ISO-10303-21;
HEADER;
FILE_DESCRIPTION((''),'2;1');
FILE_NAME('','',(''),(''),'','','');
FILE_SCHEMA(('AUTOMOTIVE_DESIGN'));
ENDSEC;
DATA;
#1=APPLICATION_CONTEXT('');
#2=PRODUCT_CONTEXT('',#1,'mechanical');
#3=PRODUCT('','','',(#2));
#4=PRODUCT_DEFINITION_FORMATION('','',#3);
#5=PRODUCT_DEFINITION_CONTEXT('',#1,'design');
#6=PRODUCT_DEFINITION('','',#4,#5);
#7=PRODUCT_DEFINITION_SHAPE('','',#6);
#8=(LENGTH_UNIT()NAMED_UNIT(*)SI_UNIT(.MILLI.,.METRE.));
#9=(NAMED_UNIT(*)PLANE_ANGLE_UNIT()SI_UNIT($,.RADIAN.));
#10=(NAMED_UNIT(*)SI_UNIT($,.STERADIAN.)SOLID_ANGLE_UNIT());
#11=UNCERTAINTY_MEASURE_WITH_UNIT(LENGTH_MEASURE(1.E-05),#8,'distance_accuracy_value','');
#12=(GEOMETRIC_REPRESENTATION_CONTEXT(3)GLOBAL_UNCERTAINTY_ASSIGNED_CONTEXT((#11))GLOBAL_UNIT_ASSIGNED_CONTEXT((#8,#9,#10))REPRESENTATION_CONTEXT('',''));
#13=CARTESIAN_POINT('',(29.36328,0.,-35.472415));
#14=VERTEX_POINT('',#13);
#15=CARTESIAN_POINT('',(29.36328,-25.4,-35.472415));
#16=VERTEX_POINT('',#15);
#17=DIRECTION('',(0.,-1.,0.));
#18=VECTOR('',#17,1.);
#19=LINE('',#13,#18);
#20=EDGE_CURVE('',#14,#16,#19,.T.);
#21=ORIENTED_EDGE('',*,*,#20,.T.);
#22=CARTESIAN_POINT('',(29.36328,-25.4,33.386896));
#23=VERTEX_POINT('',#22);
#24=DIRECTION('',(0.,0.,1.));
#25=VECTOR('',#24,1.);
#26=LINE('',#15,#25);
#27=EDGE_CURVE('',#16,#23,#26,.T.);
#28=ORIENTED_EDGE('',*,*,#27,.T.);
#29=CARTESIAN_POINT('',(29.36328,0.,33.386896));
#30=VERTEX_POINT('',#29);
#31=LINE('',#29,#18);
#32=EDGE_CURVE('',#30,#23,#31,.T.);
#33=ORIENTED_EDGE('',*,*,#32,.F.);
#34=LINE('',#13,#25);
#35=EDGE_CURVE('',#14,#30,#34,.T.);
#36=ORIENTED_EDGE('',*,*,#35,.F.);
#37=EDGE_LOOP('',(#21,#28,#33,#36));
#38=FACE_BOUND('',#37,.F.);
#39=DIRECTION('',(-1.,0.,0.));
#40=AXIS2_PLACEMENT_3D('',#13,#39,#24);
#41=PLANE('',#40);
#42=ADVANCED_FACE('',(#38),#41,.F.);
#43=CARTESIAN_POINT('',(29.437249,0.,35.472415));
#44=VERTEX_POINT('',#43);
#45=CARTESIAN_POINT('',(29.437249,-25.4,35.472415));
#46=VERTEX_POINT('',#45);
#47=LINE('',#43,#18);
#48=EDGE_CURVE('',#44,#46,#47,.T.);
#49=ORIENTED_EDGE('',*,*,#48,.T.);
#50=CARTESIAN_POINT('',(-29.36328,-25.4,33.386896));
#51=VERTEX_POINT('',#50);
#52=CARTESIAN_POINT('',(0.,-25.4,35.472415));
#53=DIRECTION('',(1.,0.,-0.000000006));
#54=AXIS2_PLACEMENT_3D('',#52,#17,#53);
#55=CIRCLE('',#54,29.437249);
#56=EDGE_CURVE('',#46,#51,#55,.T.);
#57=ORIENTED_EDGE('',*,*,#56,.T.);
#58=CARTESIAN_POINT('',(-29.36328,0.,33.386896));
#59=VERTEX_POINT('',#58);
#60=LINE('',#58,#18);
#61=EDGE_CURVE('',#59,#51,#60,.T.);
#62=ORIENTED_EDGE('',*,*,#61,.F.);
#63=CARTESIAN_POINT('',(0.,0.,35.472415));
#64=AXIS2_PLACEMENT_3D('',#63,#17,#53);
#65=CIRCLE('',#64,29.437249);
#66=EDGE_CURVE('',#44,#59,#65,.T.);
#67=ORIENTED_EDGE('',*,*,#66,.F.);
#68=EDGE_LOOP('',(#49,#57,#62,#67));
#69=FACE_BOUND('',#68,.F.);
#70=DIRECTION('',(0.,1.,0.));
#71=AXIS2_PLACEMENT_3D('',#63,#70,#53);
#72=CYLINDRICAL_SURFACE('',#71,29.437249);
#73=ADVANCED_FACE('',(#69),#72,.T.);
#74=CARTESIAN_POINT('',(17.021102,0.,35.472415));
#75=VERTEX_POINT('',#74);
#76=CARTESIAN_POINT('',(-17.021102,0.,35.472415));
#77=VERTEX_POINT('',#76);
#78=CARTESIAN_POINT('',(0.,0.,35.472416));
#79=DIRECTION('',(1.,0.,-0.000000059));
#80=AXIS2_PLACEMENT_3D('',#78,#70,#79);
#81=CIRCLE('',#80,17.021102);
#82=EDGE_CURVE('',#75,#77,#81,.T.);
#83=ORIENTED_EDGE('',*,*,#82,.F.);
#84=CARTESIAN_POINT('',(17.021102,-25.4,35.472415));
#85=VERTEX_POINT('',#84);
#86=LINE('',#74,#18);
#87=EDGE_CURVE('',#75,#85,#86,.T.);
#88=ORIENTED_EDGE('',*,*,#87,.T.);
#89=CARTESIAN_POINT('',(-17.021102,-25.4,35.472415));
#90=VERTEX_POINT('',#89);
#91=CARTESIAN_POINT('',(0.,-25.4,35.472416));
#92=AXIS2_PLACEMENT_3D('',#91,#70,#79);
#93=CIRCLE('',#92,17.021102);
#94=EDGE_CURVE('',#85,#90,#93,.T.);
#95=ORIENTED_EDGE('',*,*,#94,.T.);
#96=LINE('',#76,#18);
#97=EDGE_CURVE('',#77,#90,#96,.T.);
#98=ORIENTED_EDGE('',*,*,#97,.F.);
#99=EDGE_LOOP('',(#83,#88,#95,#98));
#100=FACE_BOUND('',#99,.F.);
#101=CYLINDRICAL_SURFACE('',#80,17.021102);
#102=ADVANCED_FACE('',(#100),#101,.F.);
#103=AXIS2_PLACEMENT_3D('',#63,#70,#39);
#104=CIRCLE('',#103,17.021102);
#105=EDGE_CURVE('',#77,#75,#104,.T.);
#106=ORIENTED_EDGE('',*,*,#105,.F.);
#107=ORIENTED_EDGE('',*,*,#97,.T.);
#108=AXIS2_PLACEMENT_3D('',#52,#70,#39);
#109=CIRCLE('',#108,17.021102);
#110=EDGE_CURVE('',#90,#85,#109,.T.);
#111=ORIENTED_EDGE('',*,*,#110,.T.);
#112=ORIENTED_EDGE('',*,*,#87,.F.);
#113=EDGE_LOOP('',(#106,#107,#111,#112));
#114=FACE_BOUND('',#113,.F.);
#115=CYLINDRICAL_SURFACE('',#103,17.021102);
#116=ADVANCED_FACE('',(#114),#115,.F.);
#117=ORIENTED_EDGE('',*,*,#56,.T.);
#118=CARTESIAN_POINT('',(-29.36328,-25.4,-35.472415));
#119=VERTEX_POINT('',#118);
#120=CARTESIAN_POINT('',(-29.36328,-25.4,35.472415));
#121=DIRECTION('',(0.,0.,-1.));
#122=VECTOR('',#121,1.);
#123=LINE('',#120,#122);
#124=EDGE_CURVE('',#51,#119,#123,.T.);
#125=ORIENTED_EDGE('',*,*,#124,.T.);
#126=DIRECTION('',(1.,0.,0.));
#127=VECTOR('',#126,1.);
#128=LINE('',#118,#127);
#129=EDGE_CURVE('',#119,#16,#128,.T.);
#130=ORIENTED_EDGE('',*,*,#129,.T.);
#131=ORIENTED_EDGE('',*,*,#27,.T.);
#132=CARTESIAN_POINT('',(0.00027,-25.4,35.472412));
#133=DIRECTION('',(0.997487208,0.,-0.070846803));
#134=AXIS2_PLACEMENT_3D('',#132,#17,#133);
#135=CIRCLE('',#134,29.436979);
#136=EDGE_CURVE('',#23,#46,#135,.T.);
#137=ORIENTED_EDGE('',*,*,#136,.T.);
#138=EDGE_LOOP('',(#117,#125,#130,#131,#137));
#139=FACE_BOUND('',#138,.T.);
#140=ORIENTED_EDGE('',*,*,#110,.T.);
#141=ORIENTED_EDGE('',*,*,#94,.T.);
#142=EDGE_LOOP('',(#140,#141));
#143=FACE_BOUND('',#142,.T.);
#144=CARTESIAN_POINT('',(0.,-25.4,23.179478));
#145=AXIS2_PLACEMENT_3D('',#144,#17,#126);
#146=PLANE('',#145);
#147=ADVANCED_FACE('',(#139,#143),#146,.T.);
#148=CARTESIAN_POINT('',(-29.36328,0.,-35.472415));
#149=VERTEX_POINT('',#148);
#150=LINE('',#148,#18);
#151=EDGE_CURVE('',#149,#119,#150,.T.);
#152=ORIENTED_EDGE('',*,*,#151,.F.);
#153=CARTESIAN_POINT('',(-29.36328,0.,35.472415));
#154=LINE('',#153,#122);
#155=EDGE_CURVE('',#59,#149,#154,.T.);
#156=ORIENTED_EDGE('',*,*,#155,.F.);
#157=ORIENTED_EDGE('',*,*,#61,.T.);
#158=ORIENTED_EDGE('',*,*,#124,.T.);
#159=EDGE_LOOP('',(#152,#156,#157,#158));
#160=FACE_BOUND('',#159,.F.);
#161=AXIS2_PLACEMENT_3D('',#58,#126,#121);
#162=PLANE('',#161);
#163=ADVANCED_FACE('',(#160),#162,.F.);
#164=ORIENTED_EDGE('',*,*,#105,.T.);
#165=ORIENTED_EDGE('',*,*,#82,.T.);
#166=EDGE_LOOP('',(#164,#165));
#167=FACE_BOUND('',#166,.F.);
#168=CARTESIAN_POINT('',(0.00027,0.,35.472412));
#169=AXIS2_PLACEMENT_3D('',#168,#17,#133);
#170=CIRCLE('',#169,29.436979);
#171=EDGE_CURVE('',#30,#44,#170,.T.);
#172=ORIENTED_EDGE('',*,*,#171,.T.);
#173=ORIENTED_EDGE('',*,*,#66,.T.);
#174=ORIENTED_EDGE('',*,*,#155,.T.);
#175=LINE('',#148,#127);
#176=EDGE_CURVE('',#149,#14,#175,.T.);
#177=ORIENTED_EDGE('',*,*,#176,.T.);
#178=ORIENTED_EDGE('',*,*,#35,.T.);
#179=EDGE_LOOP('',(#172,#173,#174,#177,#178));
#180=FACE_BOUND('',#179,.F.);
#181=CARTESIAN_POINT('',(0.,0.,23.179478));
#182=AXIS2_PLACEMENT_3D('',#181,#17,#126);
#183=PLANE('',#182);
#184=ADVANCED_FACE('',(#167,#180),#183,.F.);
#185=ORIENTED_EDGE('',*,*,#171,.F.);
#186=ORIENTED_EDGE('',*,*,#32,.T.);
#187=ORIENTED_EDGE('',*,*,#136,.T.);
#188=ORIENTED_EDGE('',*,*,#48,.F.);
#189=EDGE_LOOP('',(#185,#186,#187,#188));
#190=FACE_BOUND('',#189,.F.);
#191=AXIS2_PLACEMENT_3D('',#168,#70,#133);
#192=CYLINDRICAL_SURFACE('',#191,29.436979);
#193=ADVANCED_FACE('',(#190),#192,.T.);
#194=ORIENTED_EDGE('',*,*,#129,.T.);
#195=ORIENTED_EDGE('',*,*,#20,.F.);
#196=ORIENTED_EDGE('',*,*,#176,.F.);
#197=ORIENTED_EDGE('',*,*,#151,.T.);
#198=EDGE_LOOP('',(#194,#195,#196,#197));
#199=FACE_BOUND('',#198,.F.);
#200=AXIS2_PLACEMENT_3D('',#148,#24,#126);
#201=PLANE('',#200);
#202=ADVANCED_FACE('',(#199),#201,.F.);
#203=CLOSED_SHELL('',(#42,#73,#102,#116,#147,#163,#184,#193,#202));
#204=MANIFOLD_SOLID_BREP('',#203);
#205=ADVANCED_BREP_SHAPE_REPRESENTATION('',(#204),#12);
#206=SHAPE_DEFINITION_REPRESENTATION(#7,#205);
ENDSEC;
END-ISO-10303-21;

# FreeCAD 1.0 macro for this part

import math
import FreeCAD as App
import Part
import Sketcher
from FreeCAD import Vector
Q = App.Units.Quantity

doc = App.newDocument("Part")
body = doc.addObject("PartDesign::Body", "Body")

sketch1 = doc.addObject("Sketcher::SketchObject", "Sketch")
body.addObject(sketch1)
sketch1.AttachmentSupport = (doc.XZ_Plane, [""])
sketch1.MapMode = "FlatFace"
sketch1.addGeometry([
    Part.LineSegment(Vector(-29.4, 33.4, 0), Vector(-29.4, -35.5, 0)),
    Part.LineSegment(Vector(-29.4, -35.5, 0), Vector(29.4, -35.5, 0)),
    Part.LineSegment(Vector(29.4, -35.5, 0), Vector(29.4, 33.4, 0)),
    Part.ArcOfCircle(Part.Circle(Vector(0, 35.5, 0), Vector(0, 0, 1), 29.4), math.radians(-4.06), math.radians(0)),
    Part.ArcOfCircle(Part.Circle(Vector(0, 35.5, 0), Vector(0, 0, 1), 29.4), math.radians(0), math.radians(184)),
    Part.ArcOfCircle(Part.Circle(Vector(0, 35.5, 0), Vector(0, 0, 1), 17), math.radians(-180), math.radians(0)),
    Part.ArcOfCircle(Part.Circle(Vector(0, 35.5, 0), Vector(0, 0, 1), 17), math.radians(0), math.radians(180)),
], False)
sketch1.addConstraint([
    Sketcher.Constraint("Coincident", 0, 2, 1, 1),
    Sketcher.Constraint("Coincident", 1, 2, 2, 1),
    Sketcher.Constraint("Coincident", 2, 2, 3, 1),
    Sketcher.Constraint("Tangent", 3, 2, 4, 1),
    Sketcher.Constraint("Coincident", 4, 2, 0, 1),
    Sketcher.Constraint("Tangent", 5, 1, 6, 2),
    Sketcher.Constraint("Coincident", 6, 1, 5, 2),
    Sketcher.Constraint("Vertical", 0),
    Sketcher.Constraint("Horizontal", 1),
    Sketcher.Constraint("Vertical", 2),
    Sketcher.Constraint("Coincident", 5, 3, 4, 3),
    Sketcher.Constraint("Symmetric", 2, 2, 4, 2, -2),
    Sketcher.Constraint("Horizontal", 6, 3, 3, 2),
    Sketcher.Constraint("Horizontal", 3, 2, 5, 1),
    Sketcher.Constraint("Horizontal", 5, 1, 6, 1),
    Sketcher.Constraint("Radius", 5, 17.021102),
    Sketcher.Constraint("Radius", 3, 29.436979),
    Sketcher.Constraint("Radius", 4, 29.437249),
    Sketcher.Constraint("DistanceX", 1, 1, 1, 2, 58.72656),
    Sketcher.Constraint("DistanceY", 0, 2, 0, 1, 68.859311),
    Sketcher.Constraint("DistanceY", -1, 1, 3, 3, 35.472412),
])
pad1 = doc.addObject("PartDesign::Pad", "Pad")
body.addObject(pad1)
pad1.Profile = sketch1
pad1.Length = Q("1 in")

doc.recompute()
